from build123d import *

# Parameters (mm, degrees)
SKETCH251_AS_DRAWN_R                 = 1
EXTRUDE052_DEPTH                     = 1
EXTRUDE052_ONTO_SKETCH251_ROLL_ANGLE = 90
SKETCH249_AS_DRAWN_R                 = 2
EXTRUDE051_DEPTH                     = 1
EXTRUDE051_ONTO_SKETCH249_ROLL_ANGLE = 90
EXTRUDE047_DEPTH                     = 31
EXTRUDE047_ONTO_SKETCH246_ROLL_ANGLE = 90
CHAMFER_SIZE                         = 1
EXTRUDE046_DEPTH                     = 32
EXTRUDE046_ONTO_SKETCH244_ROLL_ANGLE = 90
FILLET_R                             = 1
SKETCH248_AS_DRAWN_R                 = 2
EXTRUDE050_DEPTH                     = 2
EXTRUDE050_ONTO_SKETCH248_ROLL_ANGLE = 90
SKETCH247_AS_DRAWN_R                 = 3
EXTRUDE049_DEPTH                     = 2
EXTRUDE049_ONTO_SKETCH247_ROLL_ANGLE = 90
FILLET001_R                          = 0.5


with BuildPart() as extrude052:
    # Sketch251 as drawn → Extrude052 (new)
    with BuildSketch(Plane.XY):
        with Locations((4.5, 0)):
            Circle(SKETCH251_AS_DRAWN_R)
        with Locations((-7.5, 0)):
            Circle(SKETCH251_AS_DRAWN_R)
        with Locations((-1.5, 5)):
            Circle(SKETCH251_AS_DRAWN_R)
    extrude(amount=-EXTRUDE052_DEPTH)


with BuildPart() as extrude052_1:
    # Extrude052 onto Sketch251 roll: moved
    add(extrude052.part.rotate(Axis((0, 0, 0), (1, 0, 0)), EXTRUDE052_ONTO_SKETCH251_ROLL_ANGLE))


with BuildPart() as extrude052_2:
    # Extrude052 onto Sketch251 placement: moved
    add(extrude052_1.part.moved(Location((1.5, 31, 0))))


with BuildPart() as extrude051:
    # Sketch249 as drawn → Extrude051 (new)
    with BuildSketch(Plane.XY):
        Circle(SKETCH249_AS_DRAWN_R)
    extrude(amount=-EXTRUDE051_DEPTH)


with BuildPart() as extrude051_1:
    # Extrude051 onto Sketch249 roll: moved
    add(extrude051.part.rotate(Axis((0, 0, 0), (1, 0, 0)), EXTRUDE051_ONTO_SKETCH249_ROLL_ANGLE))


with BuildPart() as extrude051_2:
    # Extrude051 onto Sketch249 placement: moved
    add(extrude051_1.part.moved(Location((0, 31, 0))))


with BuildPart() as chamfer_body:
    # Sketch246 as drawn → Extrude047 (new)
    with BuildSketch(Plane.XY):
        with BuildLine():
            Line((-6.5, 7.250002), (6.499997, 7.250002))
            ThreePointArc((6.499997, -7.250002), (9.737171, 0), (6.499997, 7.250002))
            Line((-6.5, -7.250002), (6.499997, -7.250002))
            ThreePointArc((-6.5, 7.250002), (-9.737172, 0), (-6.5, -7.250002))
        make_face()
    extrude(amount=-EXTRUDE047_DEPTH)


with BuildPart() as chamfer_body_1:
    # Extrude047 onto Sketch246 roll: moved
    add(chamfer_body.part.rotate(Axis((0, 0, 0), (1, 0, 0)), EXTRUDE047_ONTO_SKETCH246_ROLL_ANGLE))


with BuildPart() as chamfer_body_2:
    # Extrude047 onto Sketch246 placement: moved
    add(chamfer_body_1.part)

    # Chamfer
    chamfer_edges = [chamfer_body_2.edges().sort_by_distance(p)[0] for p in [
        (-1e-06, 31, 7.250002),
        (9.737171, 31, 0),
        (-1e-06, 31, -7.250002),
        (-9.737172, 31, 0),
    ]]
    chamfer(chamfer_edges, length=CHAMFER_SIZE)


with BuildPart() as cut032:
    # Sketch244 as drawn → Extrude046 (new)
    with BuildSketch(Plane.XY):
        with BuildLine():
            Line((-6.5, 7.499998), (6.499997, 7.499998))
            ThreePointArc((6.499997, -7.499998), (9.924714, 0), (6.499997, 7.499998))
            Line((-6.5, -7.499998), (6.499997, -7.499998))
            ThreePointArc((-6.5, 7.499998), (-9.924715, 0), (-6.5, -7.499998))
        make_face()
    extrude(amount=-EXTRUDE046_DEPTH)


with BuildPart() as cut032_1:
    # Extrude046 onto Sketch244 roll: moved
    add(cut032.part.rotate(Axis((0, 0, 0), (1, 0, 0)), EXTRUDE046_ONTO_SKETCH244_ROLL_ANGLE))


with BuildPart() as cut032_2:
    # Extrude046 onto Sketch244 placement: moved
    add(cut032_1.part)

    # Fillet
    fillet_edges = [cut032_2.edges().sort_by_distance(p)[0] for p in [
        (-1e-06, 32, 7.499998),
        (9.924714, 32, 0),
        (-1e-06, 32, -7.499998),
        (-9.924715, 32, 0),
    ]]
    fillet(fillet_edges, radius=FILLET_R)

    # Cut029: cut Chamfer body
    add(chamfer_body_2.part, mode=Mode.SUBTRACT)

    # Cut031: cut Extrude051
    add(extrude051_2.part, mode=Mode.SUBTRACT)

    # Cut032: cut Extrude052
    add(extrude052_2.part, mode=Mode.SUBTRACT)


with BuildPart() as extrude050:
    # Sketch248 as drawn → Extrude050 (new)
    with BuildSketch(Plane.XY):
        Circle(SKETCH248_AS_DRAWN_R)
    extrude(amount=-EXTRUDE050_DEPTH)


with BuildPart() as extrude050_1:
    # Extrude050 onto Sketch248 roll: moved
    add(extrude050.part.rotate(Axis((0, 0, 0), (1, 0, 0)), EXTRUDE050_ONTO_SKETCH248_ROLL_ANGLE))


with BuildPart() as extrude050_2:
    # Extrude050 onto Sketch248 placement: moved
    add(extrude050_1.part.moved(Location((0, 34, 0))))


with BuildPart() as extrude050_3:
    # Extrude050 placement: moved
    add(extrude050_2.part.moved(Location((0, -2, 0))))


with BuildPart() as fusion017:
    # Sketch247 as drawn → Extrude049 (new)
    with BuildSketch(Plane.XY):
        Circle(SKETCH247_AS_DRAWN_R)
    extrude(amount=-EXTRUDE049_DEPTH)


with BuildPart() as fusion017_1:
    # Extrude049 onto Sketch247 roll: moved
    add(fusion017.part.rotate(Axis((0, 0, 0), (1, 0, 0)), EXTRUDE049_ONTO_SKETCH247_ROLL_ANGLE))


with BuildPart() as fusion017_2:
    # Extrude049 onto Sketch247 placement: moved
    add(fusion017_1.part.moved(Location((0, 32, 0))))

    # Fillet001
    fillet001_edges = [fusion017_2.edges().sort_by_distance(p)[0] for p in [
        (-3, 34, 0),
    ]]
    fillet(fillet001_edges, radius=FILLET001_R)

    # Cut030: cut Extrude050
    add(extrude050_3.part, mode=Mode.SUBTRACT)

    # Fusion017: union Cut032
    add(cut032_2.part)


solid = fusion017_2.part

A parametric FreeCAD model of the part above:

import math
import FreeCAD as App
import Part
import Sketcher

V = App.Vector
Q = App.Units.Quantity


def edges_at(feature, points):
    """Names of the edges that pass closest to the given points."""
    edges = feature.Shape.Edges
    near = lambda p: min(range(len(edges)), key=lambda i: edges[i].distToShape(Part.Vertex(*p))[0])
    return sorted({f"Edge{near(p) + 1}" for p in points})

doc = App.newDocument("Part")
params = doc.addObject("Spreadsheet::Sheet", "Params")
for row, (alias, value) in enumerate([
    ("sketch1_diameter", "2 mm"),
    ("pad1_length", "1 mm"),
    ("sketch2_diameter", "4 mm"),
    ("pad2_length", "1 mm"),
    ("pad3_length", "31 mm"),
    ("chamfer_size", "1 mm"),
    ("pad4_length", "32 mm"),
    ("fillet_radius", "1 mm"),
    ("sketch5_diameter", "4 mm"),
    ("pad5_length", "2 mm"),
    ("sketch6_diameter", "6 mm"),
    ("pad6_length", "2 mm"),
    ("fillet2_radius", "0.5 mm"),
], start=1):
    params.set(f"A{row}", alias)
    params.set(f"B{row}", "=" + value)
    params.setAlias(f"B{row}", alias)

body = doc.addObject("PartDesign::Body", "Body")
body.AllowCompound = True

sketch1 = doc.addObject("Sketcher::SketchObject", "Sketch")
body.addObject(sketch1)
sketch1.AttachmentSupport = (doc.XY_Plane, [""])
sketch1.MapMode = "FlatFace"
sketch1.addGeometry([
    Part.Circle(V(4.5, 0, 0), V(0, 0, 1), 1),
    Part.Circle(V(-7.5, 0, 0), V(0, 0, 1), 1),
    Part.Circle(V(-1.5, 5, 0), V(0, 0, 1), 1),
], False)
sketch1.addConstraint([
    Sketcher.Constraint("Equal", 0, 1),
    Sketcher.Constraint("Equal", 1, 2),
    Sketcher.Constraint("PointOnObject", 0, 3, -1),
    Sketcher.Constraint("PointOnObject", 1, 3, -1),
    Sketcher.Constraint("Diameter", 0, Q("2 mm")),
    Sketcher.Constraint("DistanceY", -1, 1, 2, 3, Q("5 mm")),
    Sketcher.Constraint("DistanceX", 1, 3, 0, 3, Q("12 mm")),
    Sketcher.Constraint("DistanceX", 2, 3, 0, 3, Q("6 mm")),
    Sketcher.Constraint("DistanceX", -1, 1, 0, 3, Q("4.5 mm")),
])
sketch1.setExpression("Constraints[4]", "Params.sketch1_diameter")
pad1 = doc.addObject("PartDesign::Pad", "Pad")
body.addObject(pad1)
pad1.Profile = sketch1
pad1.setExpression("Length", "Params.pad1_length")
pad1.Reversed = True
body2 = doc.addObject("PartDesign::Body", "Body001")
body2.AllowCompound = True
doc.recompute()

body.Placement = App.Placement(V(0, 0, 0), App.Rotation(V(1, 0, 0), 90))
boolean = doc.addObject("PartDesign::Boolean", "Boolean")
body2.addObject(boolean)
boolean.Type = "Fuse"
boolean.addObjects([body])
body3 = doc.addObject("PartDesign::Body", "Body002")
body3.AllowCompound = True
doc.recompute()

body2.Placement = App.Placement(V(1.5, 31, 0), App.Rotation(V(0, 0, 1), 0))
boolean2 = doc.addObject("PartDesign::Boolean", "Boolean001")
body3.addObject(boolean2)
boolean2.Type = "Fuse"
boolean2.addObjects([body2])
body4 = doc.addObject("PartDesign::Body", "Body003")

sketch2 = doc.addObject("Sketcher::SketchObject", "Sketch001")
body4.addObject(sketch2)
sketch2.AttachmentSupport = (doc.getObject("XY_Plane003"), [""])
sketch2.MapMode = "FlatFace"
sketch2.addGeometry(Part.Circle(V(0, 0, 0), V(0, 0, 1), 2), False)
sketch2.addConstraint([
    Sketcher.Constraint("Coincident", 0, 3, -1, 1),
    Sketcher.Constraint("Diameter", 0, Q("4 mm")),
])
sketch2.setExpression("Constraints[1]", "Params.sketch2_diameter")
pad2 = doc.addObject("PartDesign::Pad", "Pad001")
body4.addObject(pad2)
pad2.Profile = sketch2
pad2.setExpression("Length", "Params.pad2_length")
pad2.Reversed = True
body5 = doc.addObject("PartDesign::Body", "Body004")
doc.recompute()

body4.Placement = App.Placement(V(0, 0, 0), App.Rotation(V(1, 0, 0), 90))
boolean3 = doc.addObject("PartDesign::Boolean", "Boolean002")
body5.addObject(boolean3)
boolean3.Type = "Fuse"
boolean3.addObjects([body4])
body6 = doc.addObject("PartDesign::Body", "Body005")
doc.recompute()

body5.Placement = App.Placement(V(0, 31, 0), App.Rotation(V(0, 0, 1), 0))
boolean4 = doc.addObject("PartDesign::Boolean", "Boolean003")
body6.addObject(boolean4)
boolean4.Type = "Fuse"
boolean4.addObjects([body5])
body7 = doc.addObject("PartDesign::Body", "Body006")

sketch3 = doc.addObject("Sketcher::SketchObject", "Sketch002")
body7.addObject(sketch3)
sketch3.AttachmentSupport = (doc.getObject("XY_Plane006"), [""])
sketch3.MapMode = "FlatFace"
sketch3.addGeometry([
    Part.LineSegment(V(6, 7, 0), V(-6, 7, 0)),
    Part.ArcOfCircle(Part.Circle(V(0, 0, 0), V(0, 0, 1), 10), math.radians(132), math.radians(228)),
    Part.LineSegment(V(-6, -7, 0), V(6, -7, 0)),
    Part.ArcOfCircle(Part.Circle(V(0, 0, 0), V(0, 0, 1), 10), math.radians(-48), math.radians(48)),
], False)
sketch3.addConstraint([
    Sketcher.Constraint("Coincident", 0, 2, 1, 1),
    Sketcher.Constraint("Coincident", 1, 2, 2, 1),
    Sketcher.Constraint("Coincident", 2, 2, 3, 1),
    Sketcher.Constraint("Coincident", 3, 2, 0, 1),
    Sketcher.Constraint("Horizontal", 0),
    Sketcher.Constraint("Horizontal", 2),
    Sketcher.Constraint("Coincident", 1, 3, -1, 1),
    Sketcher.Constraint("Coincident", 3, 3, -1, 1),
    Sketcher.Constraint("Symmetric", 0, 2, 2, 2, -1, 1),
    Sketcher.Constraint("DistanceX", 0, 2, -1, 1, Q("6.5 mm")),
    Sketcher.Constraint("DistanceY", -1, 1, 3, 2, Q("7.250002 mm")),
])
pad3 = doc.addObject("PartDesign::Pad", "Pad002")
body7.addObject(pad3)
pad3.Profile = sketch3
pad3.setExpression("Length", "Params.pad3_length")
pad3.Reversed = True
body8 = doc.addObject("PartDesign::Body", "Body007")
doc.recompute()

body7.Placement = App.Placement(V(0, 0, 0), App.Rotation(V(1, 0, 0), 90))
boolean5 = doc.addObject("PartDesign::Boolean", "Boolean004")
body8.addObject(boolean5)
boolean5.Type = "Fuse"
boolean5.addObjects([body7])
doc.recompute()

chamfer = doc.addObject("PartDesign::Chamfer", "Chamfer")
body8.addObject(chamfer)
chamfer.Base = (boolean5, edges_at(boolean5, [
    (0, 31, 7.25),
    (9.737, 31, 0),
    (0, 31, -7.25),
    (-9.737, 31, 0),
]))
chamfer.setExpression("Size", "Params.chamfer_size")
body9 = doc.addObject("PartDesign::Body", "Body008")

sketch4 = doc.addObject("Sketcher::SketchObject", "Sketch003")
body9.addObject(sketch4)
sketch4.AttachmentSupport = (doc.getObject("XY_Plane008"), [""])
sketch4.MapMode = "FlatFace"
sketch4.addGeometry([
    Part.LineSegment(V(6, 7, 0), V(-6, 7, 0)),
    Part.ArcOfCircle(Part.Circle(V(0, 0, 0), V(0, 0, 1), 10), math.radians(131), math.radians(229)),
    Part.LineSegment(V(-6, -7, 0), V(6, -7, 0)),
    Part.ArcOfCircle(Part.Circle(V(0, 0, 0), V(0, 0, 1), 10), math.radians(-49), math.radians(49)),
], False)
sketch4.addConstraint([
    Sketcher.Constraint("Coincident", 0, 2, 1, 1),
    Sketcher.Constraint("Coincident", 1, 2, 2, 1),
    Sketcher.Constraint("Coincident", 2, 2, 3, 1),
    Sketcher.Constraint("Coincident", 3, 2, 0, 1),
    Sketcher.Constraint("Horizontal", 0),
    Sketcher.Constraint("Horizontal", 2),
    Sketcher.Constraint("Coincident", 1, 3, -1, 1),
    Sketcher.Constraint("Coincident", 3, 3, -1, 1),
    Sketcher.Constraint("Symmetric", 0, 2, 2, 2, -1, 1),
    Sketcher.Constraint("DistanceX", 0, 2, -1, 1, Q("6.5 mm")),
    Sketcher.Constraint("DistanceY", 1, 2, -1, 1, Q("7.499998 mm")),
])
pad4 = doc.addObject("PartDesign::Pad", "Pad003")
body9.addObject(pad4)
pad4.Profile = sketch4
pad4.setExpression("Length", "Params.pad4_length")
pad4.Reversed = True
body10 = doc.addObject("PartDesign::Body", "Body009")
doc.recompute()

body9.Placement = App.Placement(V(0, 0, 0), App.Rotation(V(1, 0, 0), 90))
boolean6 = doc.addObject("PartDesign::Boolean", "Boolean005")
body10.addObject(boolean6)
boolean6.Type = "Fuse"
boolean6.addObjects([body9])
doc.recompute()

fillet = doc.addObject("PartDesign::Fillet", "Fillet")
body10.addObject(fillet)
fillet.Base = (boolean6, edges_at(boolean6, [
    (0, 32, 7.5),
    (9.925, 32, 0),
    (0, 32, -7.5),
    (-9.925, 32, 0),
]))
fillet.setExpression("Radius", "Params.fillet_radius")
doc.recompute()

boolean7 = doc.addObject("PartDesign::Boolean", "Boolean006")
body10.addObject(boolean7)
boolean7.Type = "Cut"
boolean7.addObjects([body8])
doc.recompute()

boolean8 = doc.addObject("PartDesign::Boolean", "Boolean007")
body10.addObject(boolean8)
boolean8.Type = "Cut"
boolean8.addObjects([body6])
doc.recompute()

boolean9 = doc.addObject("PartDesign::Boolean", "Boolean008")
body10.addObject(boolean9)
boolean9.Type = "Cut"
boolean9.addObjects([body3])
body11 = doc.addObject("PartDesign::Body", "Body010")

sketch5 = doc.addObject("Sketcher::SketchObject", "Sketch004")
body11.addObject(sketch5)
sketch5.AttachmentSupport = (doc.getObject("XY_Plane010"), [""])
sketch5.MapMode = "FlatFace"
sketch5.addGeometry(Part.Circle(V(0, 0, 0), V(0, 0, 1), 2), False)
sketch5.addConstraint([
    Sketcher.Constraint("Coincident", 0, 3, -1, 1),
    Sketcher.Constraint("Diameter", 0, Q("4 mm")),
])
sketch5.setExpression("Constraints[1]", "Params.sketch5_diameter")
pad5 = doc.addObject("PartDesign::Pad", "Pad004")
body11.addObject(pad5)
pad5.Profile = sketch5
pad5.setExpression("Length", "Params.pad5_length")
pad5.Reversed = True
body12 = doc.addObject("PartDesign::Body", "Body011")
doc.recompute()

body11.Placement = App.Placement(V(0, 0, 0), App.Rotation(V(1, 0, 0), 90))
boolean10 = doc.addObject("PartDesign::Boolean", "Boolean009")
body12.addObject(boolean10)
boolean10.Type = "Fuse"
boolean10.addObjects([body11])
body13 = doc.addObject("PartDesign::Body", "Body012")
doc.recompute()

body12.Placement = App.Placement(V(0, 34, 0), App.Rotation(V(0, 0, 1), 0))
boolean11 = doc.addObject("PartDesign::Boolean", "Boolean010")
body13.addObject(boolean11)
boolean11.Type = "Fuse"
boolean11.addObjects([body12])
body14 = doc.addObject("PartDesign::Body", "Body013")
doc.recompute()

body13.Placement = App.Placement(V(0, -2, 0), App.Rotation(V(0, 0, 1), 0))
boolean12 = doc.addObject("PartDesign::Boolean", "Boolean011")
body14.addObject(boolean12)
boolean12.Type = "Fuse"
boolean12.addObjects([body13])
body15 = doc.addObject("PartDesign::Body", "Body014")

sketch6 = doc.addObject("Sketcher::SketchObject", "Sketch005")
body15.addObject(sketch6)
sketch6.AttachmentSupport = (doc.getObject("XY_Plane014"), [""])
sketch6.MapMode = "FlatFace"
sketch6.addGeometry(Part.Circle(V(0, 0, 0), V(0, 0, 1), 3), False)
sketch6.addConstraint([
    Sketcher.Constraint("Coincident", 0, 3, -1, 1),
    Sketcher.Constraint("Diameter", 0, Q("6 mm")),
])
sketch6.setExpression("Constraints[1]", "Params.sketch6_diameter")
pad6 = doc.addObject("PartDesign::Pad", "Pad005")
body15.addObject(pad6)
pad6.Profile = sketch6
pad6.setExpression("Length", "Params.pad6_length")
pad6.Reversed = True
body16 = doc.addObject("PartDesign::Body", "Body015")
doc.recompute()

body15.Placement = App.Placement(V(0, 0, 0), App.Rotation(V(1, 0, 0), 90))
boolean13 = doc.addObject("PartDesign::Boolean", "Boolean012")
body16.addObject(boolean13)
boolean13.Type = "Fuse"
boolean13.addObjects([body15])
body17 = doc.addObject("PartDesign::Body", "Body016")
doc.recompute()

body16.Placement = App.Placement(V(0, 32, 0), App.Rotation(V(0, 0, 1), 0))
boolean14 = doc.addObject("PartDesign::Boolean", "Boolean013")
body17.addObject(boolean14)
boolean14.Type = "Fuse"
boolean14.addObjects([body16])
doc.recompute()

fillet2 = doc.addObject("PartDesign::Fillet", "Fillet001")
body17.addObject(fillet2)
fillet2.Base = (boolean14, edges_at(boolean14, [(-3, 34, 0)]))
fillet2.setExpression("Radius", "Params.fillet2_radius")
doc.recompute()

boolean15 = doc.addObject("PartDesign::Boolean", "Boolean014")
body17.addObject(boolean15)
boolean15.Type = "Cut"
boolean15.addObjects([body14])
doc.recompute()

boolean16 = doc.addObject("PartDesign::Boolean", "Boolean015")
body17.addObject(boolean16)
boolean16.Type = "Fuse"
boolean16.addObjects([body10])

doc.recompute()
